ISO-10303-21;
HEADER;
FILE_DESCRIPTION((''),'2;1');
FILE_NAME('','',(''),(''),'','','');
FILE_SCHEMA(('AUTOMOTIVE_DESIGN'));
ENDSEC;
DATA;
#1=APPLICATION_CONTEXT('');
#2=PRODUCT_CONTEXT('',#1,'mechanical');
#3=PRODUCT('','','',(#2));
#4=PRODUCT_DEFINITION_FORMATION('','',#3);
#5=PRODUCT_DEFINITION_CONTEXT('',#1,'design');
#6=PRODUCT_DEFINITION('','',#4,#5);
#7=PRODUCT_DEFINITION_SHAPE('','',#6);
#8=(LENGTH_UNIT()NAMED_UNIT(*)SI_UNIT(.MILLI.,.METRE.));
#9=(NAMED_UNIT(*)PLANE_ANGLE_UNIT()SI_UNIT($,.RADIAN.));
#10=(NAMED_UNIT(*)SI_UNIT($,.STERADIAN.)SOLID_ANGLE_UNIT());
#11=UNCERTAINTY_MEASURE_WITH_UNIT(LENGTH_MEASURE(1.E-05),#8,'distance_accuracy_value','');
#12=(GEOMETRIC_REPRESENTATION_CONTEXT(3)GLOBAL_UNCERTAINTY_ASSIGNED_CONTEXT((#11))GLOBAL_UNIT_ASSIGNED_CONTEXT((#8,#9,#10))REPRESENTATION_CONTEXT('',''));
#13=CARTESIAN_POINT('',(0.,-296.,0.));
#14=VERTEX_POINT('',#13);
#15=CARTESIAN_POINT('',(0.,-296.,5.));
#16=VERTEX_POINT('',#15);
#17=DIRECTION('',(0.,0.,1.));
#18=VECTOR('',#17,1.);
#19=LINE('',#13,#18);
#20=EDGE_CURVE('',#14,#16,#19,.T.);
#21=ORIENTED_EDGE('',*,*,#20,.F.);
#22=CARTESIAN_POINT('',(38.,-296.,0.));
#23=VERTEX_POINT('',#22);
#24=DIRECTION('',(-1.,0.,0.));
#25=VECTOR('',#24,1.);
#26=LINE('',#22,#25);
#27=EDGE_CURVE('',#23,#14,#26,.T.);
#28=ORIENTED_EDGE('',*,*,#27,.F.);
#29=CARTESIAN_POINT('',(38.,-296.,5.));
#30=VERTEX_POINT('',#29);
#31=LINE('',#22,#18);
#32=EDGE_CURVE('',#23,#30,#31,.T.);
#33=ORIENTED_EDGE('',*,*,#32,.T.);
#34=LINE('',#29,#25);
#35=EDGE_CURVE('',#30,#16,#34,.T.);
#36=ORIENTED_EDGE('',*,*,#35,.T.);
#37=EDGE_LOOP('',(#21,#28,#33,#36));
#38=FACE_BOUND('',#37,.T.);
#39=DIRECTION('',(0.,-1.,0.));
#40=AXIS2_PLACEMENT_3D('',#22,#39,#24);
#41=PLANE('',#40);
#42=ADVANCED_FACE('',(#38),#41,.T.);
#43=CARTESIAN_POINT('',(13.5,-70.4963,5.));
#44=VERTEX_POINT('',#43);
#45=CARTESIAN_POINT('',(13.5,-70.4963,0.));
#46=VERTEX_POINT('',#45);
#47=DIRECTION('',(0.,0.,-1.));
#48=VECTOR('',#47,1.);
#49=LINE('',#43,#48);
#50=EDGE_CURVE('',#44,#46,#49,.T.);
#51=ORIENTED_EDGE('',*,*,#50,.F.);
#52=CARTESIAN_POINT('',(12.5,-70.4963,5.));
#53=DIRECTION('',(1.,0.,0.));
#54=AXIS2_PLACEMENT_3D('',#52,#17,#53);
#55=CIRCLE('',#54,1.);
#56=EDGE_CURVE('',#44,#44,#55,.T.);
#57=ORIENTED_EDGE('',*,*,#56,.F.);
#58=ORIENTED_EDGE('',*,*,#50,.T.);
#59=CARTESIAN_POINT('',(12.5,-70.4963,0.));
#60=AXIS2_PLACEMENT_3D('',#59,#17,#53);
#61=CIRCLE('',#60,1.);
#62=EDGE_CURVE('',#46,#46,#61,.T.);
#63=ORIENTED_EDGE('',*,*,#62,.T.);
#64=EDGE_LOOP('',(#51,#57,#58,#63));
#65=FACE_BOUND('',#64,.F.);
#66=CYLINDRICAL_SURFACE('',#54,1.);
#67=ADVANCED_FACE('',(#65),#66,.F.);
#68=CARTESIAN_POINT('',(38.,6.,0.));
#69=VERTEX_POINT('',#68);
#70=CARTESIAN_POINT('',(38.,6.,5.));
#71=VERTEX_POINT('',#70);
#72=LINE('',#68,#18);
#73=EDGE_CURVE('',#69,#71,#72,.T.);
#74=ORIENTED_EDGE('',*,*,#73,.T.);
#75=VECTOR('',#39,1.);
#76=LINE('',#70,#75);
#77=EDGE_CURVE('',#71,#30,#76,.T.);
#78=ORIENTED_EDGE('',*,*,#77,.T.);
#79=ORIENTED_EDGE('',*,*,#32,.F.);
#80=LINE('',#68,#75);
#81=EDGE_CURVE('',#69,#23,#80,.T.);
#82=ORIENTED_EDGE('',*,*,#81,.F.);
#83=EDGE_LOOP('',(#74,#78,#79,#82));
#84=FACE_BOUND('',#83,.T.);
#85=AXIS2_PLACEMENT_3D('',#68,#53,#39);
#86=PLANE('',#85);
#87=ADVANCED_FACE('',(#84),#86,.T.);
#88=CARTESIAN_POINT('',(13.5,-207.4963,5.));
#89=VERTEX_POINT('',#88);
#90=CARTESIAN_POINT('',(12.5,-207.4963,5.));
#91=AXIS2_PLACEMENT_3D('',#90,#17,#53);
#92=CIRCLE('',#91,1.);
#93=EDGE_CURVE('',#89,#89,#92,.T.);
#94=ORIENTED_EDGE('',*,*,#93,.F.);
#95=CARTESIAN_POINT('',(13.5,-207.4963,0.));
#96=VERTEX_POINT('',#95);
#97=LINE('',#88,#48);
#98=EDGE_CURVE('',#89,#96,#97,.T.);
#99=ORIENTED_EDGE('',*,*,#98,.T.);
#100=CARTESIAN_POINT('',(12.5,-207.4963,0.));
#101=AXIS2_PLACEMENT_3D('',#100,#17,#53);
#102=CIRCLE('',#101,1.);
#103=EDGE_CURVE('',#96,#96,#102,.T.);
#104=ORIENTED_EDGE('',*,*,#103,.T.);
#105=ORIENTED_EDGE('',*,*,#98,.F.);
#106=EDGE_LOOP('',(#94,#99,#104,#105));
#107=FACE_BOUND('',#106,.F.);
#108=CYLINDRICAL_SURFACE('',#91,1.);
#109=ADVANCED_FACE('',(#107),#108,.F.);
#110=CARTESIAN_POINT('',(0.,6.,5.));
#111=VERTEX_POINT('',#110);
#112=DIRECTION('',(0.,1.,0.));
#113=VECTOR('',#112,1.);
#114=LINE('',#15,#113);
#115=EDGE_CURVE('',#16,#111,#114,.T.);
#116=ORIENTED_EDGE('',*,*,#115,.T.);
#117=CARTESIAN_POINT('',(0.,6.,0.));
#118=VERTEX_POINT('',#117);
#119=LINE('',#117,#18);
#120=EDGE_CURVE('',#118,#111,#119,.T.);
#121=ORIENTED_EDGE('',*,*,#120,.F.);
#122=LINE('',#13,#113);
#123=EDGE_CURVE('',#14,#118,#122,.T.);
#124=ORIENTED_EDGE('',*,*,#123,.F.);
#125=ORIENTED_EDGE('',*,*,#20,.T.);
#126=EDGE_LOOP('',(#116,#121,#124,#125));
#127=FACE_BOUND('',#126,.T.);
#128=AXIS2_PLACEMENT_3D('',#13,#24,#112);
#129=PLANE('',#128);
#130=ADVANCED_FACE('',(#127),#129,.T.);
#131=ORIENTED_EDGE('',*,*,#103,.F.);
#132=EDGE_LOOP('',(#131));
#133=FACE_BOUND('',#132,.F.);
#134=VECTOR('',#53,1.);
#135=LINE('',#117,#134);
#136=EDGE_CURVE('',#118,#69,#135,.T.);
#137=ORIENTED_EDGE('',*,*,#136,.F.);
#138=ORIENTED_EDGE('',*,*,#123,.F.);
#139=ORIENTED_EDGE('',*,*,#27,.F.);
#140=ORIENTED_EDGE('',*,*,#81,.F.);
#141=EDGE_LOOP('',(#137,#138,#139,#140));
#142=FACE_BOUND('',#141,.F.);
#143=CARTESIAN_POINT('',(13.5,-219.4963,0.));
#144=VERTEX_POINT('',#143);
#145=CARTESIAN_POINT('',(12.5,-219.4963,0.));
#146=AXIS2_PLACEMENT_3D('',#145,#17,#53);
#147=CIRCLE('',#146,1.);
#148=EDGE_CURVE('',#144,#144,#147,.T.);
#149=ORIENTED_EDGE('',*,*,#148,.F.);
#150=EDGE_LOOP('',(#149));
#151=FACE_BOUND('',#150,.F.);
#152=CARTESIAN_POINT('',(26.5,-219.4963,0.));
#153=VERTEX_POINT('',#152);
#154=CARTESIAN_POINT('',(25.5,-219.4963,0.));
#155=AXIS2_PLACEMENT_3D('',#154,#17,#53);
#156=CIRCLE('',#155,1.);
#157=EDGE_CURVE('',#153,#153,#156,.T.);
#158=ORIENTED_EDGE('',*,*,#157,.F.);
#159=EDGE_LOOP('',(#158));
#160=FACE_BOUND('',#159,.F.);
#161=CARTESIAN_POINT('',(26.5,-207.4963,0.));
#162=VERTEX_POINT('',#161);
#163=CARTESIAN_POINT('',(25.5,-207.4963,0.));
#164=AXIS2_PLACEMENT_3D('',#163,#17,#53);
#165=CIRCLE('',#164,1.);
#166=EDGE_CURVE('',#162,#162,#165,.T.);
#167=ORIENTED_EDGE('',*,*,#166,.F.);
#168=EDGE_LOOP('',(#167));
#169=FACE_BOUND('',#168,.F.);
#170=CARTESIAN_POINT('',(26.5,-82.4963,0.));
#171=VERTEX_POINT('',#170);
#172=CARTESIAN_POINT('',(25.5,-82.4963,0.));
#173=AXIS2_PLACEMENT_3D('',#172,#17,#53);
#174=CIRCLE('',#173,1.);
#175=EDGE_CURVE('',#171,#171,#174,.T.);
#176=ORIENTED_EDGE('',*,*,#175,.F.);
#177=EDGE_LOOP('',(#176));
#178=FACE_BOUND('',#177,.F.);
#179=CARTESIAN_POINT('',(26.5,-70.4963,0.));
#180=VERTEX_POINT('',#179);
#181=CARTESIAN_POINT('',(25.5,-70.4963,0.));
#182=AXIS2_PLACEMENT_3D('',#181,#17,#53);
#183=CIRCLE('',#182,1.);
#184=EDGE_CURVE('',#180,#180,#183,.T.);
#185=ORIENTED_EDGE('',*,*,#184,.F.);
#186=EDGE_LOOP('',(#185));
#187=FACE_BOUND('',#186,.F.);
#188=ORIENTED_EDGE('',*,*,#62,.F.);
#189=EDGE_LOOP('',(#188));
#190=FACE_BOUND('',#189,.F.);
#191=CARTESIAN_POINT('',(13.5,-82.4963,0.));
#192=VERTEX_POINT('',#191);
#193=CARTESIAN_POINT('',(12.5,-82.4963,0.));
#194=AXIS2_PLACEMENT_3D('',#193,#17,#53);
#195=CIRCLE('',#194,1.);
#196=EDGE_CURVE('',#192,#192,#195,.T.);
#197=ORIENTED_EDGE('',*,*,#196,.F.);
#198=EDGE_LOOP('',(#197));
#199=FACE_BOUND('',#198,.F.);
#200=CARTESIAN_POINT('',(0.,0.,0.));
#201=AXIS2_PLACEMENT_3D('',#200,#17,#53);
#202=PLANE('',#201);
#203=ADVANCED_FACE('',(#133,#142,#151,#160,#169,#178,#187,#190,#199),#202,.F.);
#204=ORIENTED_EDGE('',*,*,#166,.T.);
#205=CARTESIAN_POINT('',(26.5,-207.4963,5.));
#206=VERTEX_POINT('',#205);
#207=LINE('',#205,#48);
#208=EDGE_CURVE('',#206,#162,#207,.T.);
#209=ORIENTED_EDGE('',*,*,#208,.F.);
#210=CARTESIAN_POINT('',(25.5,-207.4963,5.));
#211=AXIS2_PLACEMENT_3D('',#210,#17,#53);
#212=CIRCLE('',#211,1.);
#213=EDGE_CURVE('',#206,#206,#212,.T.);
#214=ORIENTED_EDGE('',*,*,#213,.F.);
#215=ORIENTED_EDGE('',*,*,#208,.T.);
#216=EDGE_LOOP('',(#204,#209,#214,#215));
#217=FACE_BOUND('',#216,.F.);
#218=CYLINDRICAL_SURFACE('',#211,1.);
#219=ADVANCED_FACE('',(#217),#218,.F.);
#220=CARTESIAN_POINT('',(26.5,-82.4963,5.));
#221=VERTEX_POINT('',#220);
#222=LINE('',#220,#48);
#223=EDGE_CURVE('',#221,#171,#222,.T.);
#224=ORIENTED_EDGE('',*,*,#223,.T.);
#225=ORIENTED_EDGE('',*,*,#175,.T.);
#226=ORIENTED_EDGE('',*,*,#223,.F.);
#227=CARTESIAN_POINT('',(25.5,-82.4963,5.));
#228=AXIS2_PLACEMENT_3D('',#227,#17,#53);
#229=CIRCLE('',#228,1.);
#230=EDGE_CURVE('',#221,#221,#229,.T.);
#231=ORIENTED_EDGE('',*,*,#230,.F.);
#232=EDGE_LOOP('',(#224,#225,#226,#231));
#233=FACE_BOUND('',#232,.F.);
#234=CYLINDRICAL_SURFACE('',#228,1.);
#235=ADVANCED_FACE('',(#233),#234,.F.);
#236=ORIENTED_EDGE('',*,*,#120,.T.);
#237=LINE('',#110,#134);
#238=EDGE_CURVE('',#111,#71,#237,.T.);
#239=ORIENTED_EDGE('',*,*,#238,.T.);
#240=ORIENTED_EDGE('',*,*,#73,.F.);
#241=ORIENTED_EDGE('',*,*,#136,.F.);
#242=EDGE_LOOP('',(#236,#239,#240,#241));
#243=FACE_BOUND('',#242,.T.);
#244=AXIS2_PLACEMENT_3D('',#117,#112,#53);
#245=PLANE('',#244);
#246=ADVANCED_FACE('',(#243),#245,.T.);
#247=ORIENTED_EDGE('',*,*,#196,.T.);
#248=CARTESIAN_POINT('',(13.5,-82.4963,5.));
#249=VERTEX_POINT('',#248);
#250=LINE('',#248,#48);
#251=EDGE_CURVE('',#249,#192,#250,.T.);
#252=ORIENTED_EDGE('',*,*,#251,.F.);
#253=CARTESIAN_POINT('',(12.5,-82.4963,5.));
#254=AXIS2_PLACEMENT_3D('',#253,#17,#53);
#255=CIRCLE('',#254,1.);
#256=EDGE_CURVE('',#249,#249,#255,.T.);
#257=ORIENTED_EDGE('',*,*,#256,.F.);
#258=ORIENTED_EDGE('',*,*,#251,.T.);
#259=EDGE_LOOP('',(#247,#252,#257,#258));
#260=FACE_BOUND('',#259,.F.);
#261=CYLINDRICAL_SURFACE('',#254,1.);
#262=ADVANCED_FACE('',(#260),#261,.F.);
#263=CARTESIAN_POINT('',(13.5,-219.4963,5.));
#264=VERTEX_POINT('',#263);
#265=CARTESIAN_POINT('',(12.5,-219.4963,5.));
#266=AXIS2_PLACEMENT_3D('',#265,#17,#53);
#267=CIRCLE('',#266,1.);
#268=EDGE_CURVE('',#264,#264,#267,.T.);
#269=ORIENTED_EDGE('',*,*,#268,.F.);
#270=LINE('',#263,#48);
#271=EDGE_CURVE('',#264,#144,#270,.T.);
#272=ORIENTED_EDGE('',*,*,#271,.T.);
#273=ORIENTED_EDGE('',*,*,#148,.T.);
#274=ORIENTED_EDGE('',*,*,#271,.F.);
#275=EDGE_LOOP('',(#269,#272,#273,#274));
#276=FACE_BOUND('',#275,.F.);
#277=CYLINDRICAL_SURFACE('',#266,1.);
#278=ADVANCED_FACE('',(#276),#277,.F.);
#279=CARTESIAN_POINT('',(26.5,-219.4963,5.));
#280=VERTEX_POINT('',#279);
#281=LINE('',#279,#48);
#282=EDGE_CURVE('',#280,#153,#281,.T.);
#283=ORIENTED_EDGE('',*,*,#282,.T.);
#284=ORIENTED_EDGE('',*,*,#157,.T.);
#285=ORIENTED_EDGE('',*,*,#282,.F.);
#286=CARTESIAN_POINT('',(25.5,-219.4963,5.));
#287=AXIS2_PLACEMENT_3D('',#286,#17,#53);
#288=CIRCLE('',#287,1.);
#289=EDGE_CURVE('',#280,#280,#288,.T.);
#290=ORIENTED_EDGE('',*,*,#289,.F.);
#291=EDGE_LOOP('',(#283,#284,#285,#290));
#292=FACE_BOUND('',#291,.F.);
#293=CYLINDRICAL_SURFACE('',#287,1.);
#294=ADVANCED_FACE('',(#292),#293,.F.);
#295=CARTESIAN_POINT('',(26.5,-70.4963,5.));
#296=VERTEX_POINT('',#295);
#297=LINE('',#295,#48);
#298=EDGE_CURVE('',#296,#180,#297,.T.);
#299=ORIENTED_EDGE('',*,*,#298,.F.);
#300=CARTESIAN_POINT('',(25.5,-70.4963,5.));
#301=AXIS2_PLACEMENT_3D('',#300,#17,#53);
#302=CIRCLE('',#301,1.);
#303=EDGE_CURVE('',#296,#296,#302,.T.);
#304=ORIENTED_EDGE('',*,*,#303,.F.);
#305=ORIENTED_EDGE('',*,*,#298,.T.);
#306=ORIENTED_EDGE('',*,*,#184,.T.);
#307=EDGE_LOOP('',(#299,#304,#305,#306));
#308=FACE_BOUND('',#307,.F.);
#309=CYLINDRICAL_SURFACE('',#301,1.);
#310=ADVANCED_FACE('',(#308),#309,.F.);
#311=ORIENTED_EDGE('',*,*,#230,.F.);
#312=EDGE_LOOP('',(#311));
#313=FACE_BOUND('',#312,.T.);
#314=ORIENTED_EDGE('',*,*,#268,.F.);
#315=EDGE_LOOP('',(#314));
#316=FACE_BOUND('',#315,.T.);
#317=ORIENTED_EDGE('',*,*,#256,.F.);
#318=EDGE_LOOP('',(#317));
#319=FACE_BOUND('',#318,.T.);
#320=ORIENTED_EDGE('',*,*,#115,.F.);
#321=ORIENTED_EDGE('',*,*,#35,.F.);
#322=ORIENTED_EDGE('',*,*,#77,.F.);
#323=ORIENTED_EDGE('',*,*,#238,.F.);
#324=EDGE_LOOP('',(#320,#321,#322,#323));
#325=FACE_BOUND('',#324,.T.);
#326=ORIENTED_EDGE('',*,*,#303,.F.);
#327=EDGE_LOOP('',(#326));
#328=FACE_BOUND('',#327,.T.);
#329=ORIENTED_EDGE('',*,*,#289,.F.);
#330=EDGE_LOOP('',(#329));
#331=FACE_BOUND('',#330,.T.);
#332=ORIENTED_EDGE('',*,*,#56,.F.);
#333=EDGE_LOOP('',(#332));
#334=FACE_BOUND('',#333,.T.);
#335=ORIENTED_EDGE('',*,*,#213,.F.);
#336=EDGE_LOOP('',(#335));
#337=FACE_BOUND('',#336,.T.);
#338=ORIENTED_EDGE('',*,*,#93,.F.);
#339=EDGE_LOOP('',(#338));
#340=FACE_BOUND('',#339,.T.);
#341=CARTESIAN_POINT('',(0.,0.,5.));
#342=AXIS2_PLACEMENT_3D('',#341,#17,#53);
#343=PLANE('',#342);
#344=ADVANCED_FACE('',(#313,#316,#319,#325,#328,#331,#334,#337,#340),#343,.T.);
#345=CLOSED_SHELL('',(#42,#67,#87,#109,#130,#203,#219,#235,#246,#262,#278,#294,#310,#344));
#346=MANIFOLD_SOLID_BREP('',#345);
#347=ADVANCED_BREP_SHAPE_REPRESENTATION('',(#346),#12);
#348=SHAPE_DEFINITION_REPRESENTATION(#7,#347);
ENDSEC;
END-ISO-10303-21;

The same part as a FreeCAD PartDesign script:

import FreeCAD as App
import Part
import Sketcher
Q = App.Units.Quantity

doc = App.newDocument("Part")
body = doc.addObject("PartDesign::Body", "Body")

# Sketch on XY plane
sketch1 = body.newObject("Sketcher::SketchObject", "Sketch")
sketch1.AttachmentSupport = (doc.getObject("XY_Plane"), [""])
sketch1.MapMode = "FlatFace"
sketch1.addGeometry([
    Part.LineSegment(App.Vector(38, 6, 0), App.Vector(0, 6, 0)),
    Part.LineSegment(App.Vector(0, 6, 0), App.Vector(0, -296, 0)),
    Part.LineSegment(App.Vector(0, -296, 0), App.Vector(38, -296, 0)),
    Part.LineSegment(App.Vector(38, -296, 0), App.Vector(38, 6, 0)),
], False)
sketch1.addConstraint([
    Sketcher.Constraint("Coincident", 0, 2, 1, 1),
    Sketcher.Constraint("Coincident", 1, 2, 2, 1),
    Sketcher.Constraint("Coincident", 2, 2, 3, 1),
    Sketcher.Constraint("Coincident", 3, 2, 0, 1),
    Sketcher.Constraint("Horizontal", 0),
    Sketcher.Constraint("Vertical", 1),
    Sketcher.Constraint("Horizontal", 2),
    Sketcher.Constraint("Vertical", 3),
    Sketcher.Constraint("PointOnObject", 0, 2, -2),
    Sketcher.Constraint("DistanceX", 0, 2, 0, 1, Q("38 mm")),
    Sketcher.Constraint("DistanceY", 1, 2, 1, 1, Q("302 mm")),
    Sketcher.Constraint("DistanceY", -1, 1, 0, 2, Q("6 mm")),
])
pad1 = body.newObject("PartDesign::Pad", "Pad")
pad1.Profile = sketch1
pad1.Length = 5

# Sketch on XY plane
sketch2 = body.newObject("Sketcher::SketchObject", "Sketch001")
sketch2.AttachmentSupport = (doc.getObject("XY_Plane"), [""])
sketch2.MapMode = "FlatFace"
sketch2.AttachmentOffset = App.Placement(App.Vector(0, 0, 5), App.Rotation())
sketch2.addGeometry([
    Part.Circle(App.Vector(12.5, -82.4963, 0), App.Vector(0, 0, 1), 1),  # 0
    Part.Circle(App.Vector(25.5, -82.4963, 0), App.Vector(0, 0, 1), 1),  # 1
    Part.Circle(App.Vector(12.5, -70.4963, 0), App.Vector(0, 0, 1), 1),  # 2
    Part.Circle(App.Vector(25.5, -70.4963, 0), App.Vector(0, 0, 1), 1),  # 3
    Part.Circle(App.Vector(25.5, -219.4963, 0), App.Vector(0, 0, 1), 1),  # 4
    Part.Circle(App.Vector(12.5, -219.4963, 0), App.Vector(0, 0, 1), 1),  # 5
    Part.Circle(App.Vector(12.5, -207.4963, 0), App.Vector(0, 0, 1), 1),  # 6
    Part.Circle(App.Vector(25.5, -207.4963, 0), App.Vector(0, 0, 1), 1),  # 7
], False)
sketch2.addConstraint([
    Sketcher.Constraint("Equal", 0, 1),
    Sketcher.Constraint("Equal", 1, 2),
    Sketcher.Constraint("Equal", 2, 3),
    Sketcher.Constraint("Equal", 3, 4),
    Sketcher.Constraint("Equal", 4, 5),
    Sketcher.Constraint("Equal", 5, 6),
    Sketcher.Constraint("Equal", 6, 7),
    Sketcher.Constraint("Horizontal", 0, 3, 1, 3),
    Sketcher.Constraint("Horizontal", 2, 3, 3, 3),
    Sketcher.Constraint("Horizontal", 4, 3, 5, 3),
    Sketcher.Constraint("Horizontal", 6, 3, 7, 3),
    Sketcher.Constraint("Vertical", 0, 3, 2, 3),
    Sketcher.Constraint("Vertical", 1, 3, 3, 3),
    Sketcher.Constraint("Vertical", 3, 3, 4, 3),
    Sketcher.Constraint("Vertical", 2, 3, 5, 3),
    Sketcher.Constraint("Vertical", 5, 3, 6, 3),
    Sketcher.Constraint("Vertical", 4, 3, 7, 3),
    Sketcher.Constraint("Diameter", 0, Q("2 mm")),
    Sketcher.Constraint("DistanceX", 0, 3, 1, 3, Q("13 mm")),
    Sketcher.Constraint("DistanceY", 0, 3, 2, 3, Q("12 mm")),
    Sketcher.Constraint("DistanceY", 4, 3, 1, 3, Q("137 mm")),
    Sketcher.Constraint("DistanceY", 5, 3, 6, 3, Q("12 mm")),
    Sketcher.Constraint("DistanceX", -1, 1, 0, 3, Q("12.5 mm")),
    Sketcher.Constraint("DistanceY", 0, 3, -1, 1, Q("82.4963 mm")),
])
pocket1 = body.newObject("PartDesign::Pocket", "Pocket")
pocket1.Profile = sketch2
pocket1.Type = "ThroughAll"

doc.recompute()
